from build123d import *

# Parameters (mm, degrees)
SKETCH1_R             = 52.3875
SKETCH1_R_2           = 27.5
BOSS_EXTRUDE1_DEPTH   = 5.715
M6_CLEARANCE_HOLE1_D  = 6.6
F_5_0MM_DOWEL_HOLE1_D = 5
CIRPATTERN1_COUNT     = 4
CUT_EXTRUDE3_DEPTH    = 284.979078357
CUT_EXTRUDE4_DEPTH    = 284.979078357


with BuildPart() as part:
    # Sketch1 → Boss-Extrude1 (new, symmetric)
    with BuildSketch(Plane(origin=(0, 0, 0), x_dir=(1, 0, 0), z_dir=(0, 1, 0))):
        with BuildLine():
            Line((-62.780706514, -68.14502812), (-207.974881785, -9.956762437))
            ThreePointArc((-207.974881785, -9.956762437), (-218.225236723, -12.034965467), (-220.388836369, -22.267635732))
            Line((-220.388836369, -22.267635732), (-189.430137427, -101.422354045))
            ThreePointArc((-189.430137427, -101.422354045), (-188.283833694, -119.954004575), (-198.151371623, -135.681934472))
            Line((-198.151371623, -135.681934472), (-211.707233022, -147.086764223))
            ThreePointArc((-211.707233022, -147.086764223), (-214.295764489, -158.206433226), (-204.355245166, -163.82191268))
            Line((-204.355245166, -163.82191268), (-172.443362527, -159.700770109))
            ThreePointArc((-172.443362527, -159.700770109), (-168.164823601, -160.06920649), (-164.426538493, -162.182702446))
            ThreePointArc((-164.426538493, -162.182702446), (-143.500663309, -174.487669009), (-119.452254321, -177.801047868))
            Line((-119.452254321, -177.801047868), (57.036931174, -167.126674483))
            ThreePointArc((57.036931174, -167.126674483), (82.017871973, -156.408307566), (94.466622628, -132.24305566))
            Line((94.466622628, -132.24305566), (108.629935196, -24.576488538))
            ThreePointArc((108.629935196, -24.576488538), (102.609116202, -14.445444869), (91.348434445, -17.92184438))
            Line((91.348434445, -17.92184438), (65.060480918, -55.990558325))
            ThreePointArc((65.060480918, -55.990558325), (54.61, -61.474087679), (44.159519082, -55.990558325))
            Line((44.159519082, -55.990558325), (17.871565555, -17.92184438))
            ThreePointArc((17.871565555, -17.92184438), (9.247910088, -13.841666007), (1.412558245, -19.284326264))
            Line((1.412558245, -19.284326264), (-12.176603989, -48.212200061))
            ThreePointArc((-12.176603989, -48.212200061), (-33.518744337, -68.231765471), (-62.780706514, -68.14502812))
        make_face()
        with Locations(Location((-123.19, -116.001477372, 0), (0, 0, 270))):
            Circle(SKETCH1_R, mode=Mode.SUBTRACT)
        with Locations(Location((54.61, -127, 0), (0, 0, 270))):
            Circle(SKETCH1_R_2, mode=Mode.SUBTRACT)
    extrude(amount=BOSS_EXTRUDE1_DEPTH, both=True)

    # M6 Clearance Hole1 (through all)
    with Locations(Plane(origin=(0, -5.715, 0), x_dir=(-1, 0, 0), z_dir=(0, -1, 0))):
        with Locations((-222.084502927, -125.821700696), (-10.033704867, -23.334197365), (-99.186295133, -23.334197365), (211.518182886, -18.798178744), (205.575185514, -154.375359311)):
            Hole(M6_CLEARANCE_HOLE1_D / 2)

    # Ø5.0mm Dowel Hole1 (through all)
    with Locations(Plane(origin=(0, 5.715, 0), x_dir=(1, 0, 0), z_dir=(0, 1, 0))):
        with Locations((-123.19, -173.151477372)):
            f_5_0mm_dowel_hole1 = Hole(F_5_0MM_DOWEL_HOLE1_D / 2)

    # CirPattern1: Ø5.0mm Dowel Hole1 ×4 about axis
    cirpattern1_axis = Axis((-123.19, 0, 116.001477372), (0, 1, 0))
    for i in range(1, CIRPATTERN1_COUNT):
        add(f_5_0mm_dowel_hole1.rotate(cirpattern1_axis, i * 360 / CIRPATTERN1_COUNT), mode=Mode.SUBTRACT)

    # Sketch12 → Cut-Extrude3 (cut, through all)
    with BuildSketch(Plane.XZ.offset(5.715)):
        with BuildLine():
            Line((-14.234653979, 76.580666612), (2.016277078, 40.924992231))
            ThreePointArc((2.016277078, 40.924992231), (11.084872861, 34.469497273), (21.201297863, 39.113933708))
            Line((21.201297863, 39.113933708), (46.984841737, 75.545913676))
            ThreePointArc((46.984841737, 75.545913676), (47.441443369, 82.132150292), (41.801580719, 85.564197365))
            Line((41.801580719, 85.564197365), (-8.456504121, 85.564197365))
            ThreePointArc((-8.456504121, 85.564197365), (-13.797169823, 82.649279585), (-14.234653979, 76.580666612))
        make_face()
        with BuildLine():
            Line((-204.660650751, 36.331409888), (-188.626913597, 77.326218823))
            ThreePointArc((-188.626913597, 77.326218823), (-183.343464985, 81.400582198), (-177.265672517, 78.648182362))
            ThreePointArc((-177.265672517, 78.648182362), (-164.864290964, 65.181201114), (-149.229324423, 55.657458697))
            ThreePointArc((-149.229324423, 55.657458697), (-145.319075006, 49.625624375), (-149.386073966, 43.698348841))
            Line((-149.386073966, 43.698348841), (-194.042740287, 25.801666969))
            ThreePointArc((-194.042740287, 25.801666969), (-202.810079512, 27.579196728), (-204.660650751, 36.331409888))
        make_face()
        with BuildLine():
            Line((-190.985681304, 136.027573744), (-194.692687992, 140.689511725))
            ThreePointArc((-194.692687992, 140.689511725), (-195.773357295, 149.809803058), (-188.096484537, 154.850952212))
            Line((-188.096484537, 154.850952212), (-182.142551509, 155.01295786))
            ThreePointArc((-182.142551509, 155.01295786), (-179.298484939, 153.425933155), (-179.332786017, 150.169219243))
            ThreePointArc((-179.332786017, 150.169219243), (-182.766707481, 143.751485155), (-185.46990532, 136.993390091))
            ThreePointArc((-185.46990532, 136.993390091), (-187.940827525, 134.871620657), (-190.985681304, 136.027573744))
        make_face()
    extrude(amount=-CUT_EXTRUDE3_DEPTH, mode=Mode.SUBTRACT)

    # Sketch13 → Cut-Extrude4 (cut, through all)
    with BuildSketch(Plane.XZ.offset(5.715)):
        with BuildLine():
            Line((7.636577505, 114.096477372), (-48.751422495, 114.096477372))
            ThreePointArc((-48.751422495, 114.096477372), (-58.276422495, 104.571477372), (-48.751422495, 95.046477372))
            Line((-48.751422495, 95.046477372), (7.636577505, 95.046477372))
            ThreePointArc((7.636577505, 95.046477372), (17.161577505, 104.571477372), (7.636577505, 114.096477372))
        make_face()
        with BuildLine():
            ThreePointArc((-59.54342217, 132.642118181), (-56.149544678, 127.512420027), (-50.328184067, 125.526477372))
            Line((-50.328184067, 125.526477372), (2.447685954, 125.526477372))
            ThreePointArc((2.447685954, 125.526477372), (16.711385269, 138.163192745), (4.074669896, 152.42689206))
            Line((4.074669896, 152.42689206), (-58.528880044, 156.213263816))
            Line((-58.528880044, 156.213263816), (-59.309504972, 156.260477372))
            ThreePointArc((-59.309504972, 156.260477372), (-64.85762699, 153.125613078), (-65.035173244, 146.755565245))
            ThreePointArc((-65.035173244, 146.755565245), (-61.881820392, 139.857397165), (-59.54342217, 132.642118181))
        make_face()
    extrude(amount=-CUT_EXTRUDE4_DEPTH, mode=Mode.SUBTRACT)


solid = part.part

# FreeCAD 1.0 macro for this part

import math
import FreeCAD as App
import Part
import Sketcher
Q = App.Units.Quantity

doc = App.newDocument("Part")
body = doc.addObject("PartDesign::Body", "Body")

# Sketch on XZ plane
sketch1 = doc.addObject("Sketcher::SketchObject", "Sketch")
body.addObject(sketch1)
sketch1.AttachmentSupport = (doc.XZ_Plane, [""])
sketch1.MapMode = "FlatFace"
sketch1.addGeometry([
    Part.LineSegment(App.Vector(-62.780707, 68.145028, 0), App.Vector(-207.974882, 9.956762, 0)),  # 0
    Part.ArcOfCircle(Part.Circle(App.Vector(-211.518183, 18.798179, 0), App.Vector(0, 0, 1), 9.525), math.radians(158.638723), math.radians(291.839023)),  # 1
    Part.LineSegment(App.Vector(-220.388836, 22.267636, 0), App.Vector(-189.430137, 101.422354, 0)),  # 2
    Part.ArcOfCircle(Part.Circle(App.Vector(-217.679198, 112.471022, 0), App.Vector(0, 0, 1), 30.332861), math.radians(-21.361277), math.radians(49.925396)),  # 3
    Part.LineSegment(App.Vector(-198.151372, 135.681934, 0), App.Vector(-211.707233, 147.086764, 0)),  # 4
    Part.ArcOfCircle(Part.Circle(App.Vector(-205.575186, 154.375359, 0), App.Vector(0, 0, 1), 9.525), math.radians(82.641474), math.radians(229.925396)),  # 5
    Part.LineSegment(App.Vector(-204.355245, 163.821913, 0), App.Vector(-172.443363, 159.70077, 0)),  # 6
    Part.ArcOfCircle(Part.Circle(App.Vector(-171.150394, 169.712817, 0), App.Vector(0, 0, 1), 10.09519), math.radians(-97.358526), math.radians(-48.237421)),  # 7
    Part.ArcOfCircle(Part.Circle(App.Vector(-123.19, 116.001477, 0), App.Vector(0, 0, 1), 61.9125), math.radians(86.538868), math.radians(131.762579)),  # 8
    Part.LineSegment(App.Vector(-119.452254, 177.801048, 0), App.Vector(57.036931, 167.126674, 0)),  # 9
    Part.ArcOfCircle(Part.Circle(App.Vector(54.61, 127, 0), App.Vector(0, 0, 1), 40.2), math.radians(7.49411), math.radians(86.538868)),  # 10
    Part.LineSegment(App.Vector(94.466623, 132.243056, 0), App.Vector(108.629935, 24.576489, 0)),  # 11
    Part.ArcOfCircle(Part.Circle(App.Vector(99.186295, 23.334197, 0), App.Vector(0, 0, 1), 9.525), math.radians(-145.373386), math.radians(7.49411)),  # 12
    Part.LineSegment(App.Vector(91.348434, 17.921844, 0), App.Vector(65.060481, 55.990558, 0)),  # 13
    Part.ArcOfCircle(Part.Circle(App.Vector(54.61, 48.774088, 0), App.Vector(0, 0, 1), 12.7), math.radians(34.626614), math.radians(145.373386)),  # 14
    Part.LineSegment(App.Vector(44.159519, 55.990558, 0), App.Vector(17.871566, 17.921844, 0)),  # 15
    Part.ArcOfCircle(Part.Circle(App.Vector(10.033705, 23.334197, 0), App.Vector(0, 0, 1), 9.525), math.radians(-154.837733), math.radians(-34.626614)),  # 16
    Part.LineSegment(App.Vector(1.412558, 19.284326, 0), App.Vector(-12.176604, 48.2122, 0)),  # 17
    Part.ArcOfCircle(Part.Circle(App.Vector(-48.040574, 31.364736, 0), App.Vector(0, 0, 1), 39.624), math.radians(25.162267), math.radians(111.839023)),  # 18
    Part.Circle(App.Vector(54.61, 127, 0), App.Vector(0, 0, 1), 27.5),  # 19
    Part.Circle(App.Vector(-123.19, 116.001477, 0), App.Vector(0, 0, 1), 52.3875),  # 20
], False)
sketch1.addConstraint([
    Sketcher.Constraint("Coincident", 0, 2, 1, 2),
    Sketcher.Constraint("Coincident", 1, 1, 2, 1),
    Sketcher.Constraint("Coincident", 2, 2, 3, 1),
    Sketcher.Constraint("Coincident", 3, 2, 4, 1),
    Sketcher.Constraint("Coincident", 4, 2, 5, 2),
    Sketcher.Constraint("Coincident", 5, 1, 6, 1),
    Sketcher.Constraint("Coincident", 6, 2, 7, 1),
    Sketcher.Constraint("Coincident", 7, 2, 8, 2),
    Sketcher.Constraint("Coincident", 8, 1, 9, 1),
    Sketcher.Constraint("Coincident", 9, 2, 10, 2),
    Sketcher.Constraint("Coincident", 10, 1, 11, 1),
    Sketcher.Constraint("Coincident", 11, 2, 12, 2),
    Sketcher.Constraint("Coincident", 12, 1, 13, 1),
    Sketcher.Constraint("Coincident", 13, 2, 14, 1),
    Sketcher.Constraint("Coincident", 14, 2, 15, 1),
    Sketcher.Constraint("Coincident", 15, 2, 16, 2),
    Sketcher.Constraint("Coincident", 16, 1, 17, 1),
    Sketcher.Constraint("Coincident", 17, 2, 18, 1),
    Sketcher.Constraint("Coincident", 18, 2, 0, 1),
    Sketcher.Constraint("Coincident", 19, 3, 10, 3),
    Sketcher.Constraint("Coincident", 20, 3, 8, 3),
    Sketcher.Constraint("Radius", 14, Q("0.5 in")),
    Sketcher.Constraint("Radius", 18, Q("1.56 in")),
    Sketcher.Constraint("Diameter", 20, Q("4.125 in")),
    Sketcher.Constraint("DistanceY", -1, 1, 10, 3, Q("5 in")),
    Sketcher.Constraint("Radius", 1, Q("0.375 in")),
    Sketcher.Constraint("Radius", 5, Q("0.375 in")),
    Sketcher.Constraint("Radius", 8, Q("2.4375 in")),
    Sketcher.Constraint("Radius", 12, Q("0.375 in")),
    Sketcher.Constraint("Radius", 16, Q("0.375 in")),
    Sketcher.Constraint("DistanceX", 8, 3, 10, 3, Q("7 in")),
    Sketcher.Constraint("DistanceX", 8, 3, 14, 3, Q("7 in")),
    Sketcher.Constraint("Diameter", 19, 55.0),
    Sketcher.Constraint("DistanceX", 8, 3, -1, 1, Q("4.85 in")),
    Sketcher.Constraint("Radius", 10, 40.2),
    Sketcher.Constraint("Radius", 3, 30.332861),
    Sketcher.Constraint("Radius", 7, 10.09519),
    Sketcher.Constraint("DistanceX", 1, 3, 0, 2, Q("0.1395 in")),
    Sketcher.Constraint("DistanceX", 3, 3, -1, 1, 217.679198),
    Sketcher.Constraint("DistanceY", -1, 1, 17, 2, 48.2122),
    Sketcher.Constraint("DistanceY", 1, 3, 8, 3, 97.203299),
    Sketcher.Constraint("DistanceY", 11, 2, 14, 3, 24.197599),
    Sketcher.Constraint("DistanceX", 12, 1, 11, 2, 17.281501),
    Sketcher.Constraint("DistanceY", 16, 1, 18, 2, 48.860702),
    Sketcher.Constraint("Distance", 0, 156.42002),
    Sketcher.Constraint("Distance", 2, 84.993591),
    Sketcher.Constraint("Distance", 4, 17.715291),
    Sketcher.Constraint("Distance", 11, 108.594149),
    Sketcher.Constraint("DistanceY", -1, 1, 1, 3, 18.798179),
    Sketcher.Constraint("DistanceY", -1, 1, 3, 3, 112.471022),
    Sketcher.Constraint("DistanceY", -1, 1, 5, 3, 154.375359),
    Sketcher.Constraint("DistanceX", 0, 2, -1, 1, 207.974882),
    Sketcher.Constraint("DistanceX", 3, 2, -1, 1, 198.151372),
    Sketcher.Constraint("DistanceY", -1, 1, 6, 2, 159.70077),
    Sketcher.Constraint("DistanceX", 7, 2, -1, 1, 164.426538),
    Sketcher.Constraint("DistanceX", -1, 1, 9, 2, 57.036931),
    Sketcher.Constraint("DistanceY", -1, 1, 11, 2, 24.576489),
    Sketcher.Constraint("DistanceX", -1, 1, 13, 2, 65.060481),
    Sketcher.Constraint("DistanceX", -1, 1, 14, 2, 44.159519),
    Sketcher.Constraint("DistanceX", -1, 1, 16, 1, 1.412558),
    Sketcher.Constraint("DistanceY", -1, 1, 18, 2, 68.145028),
    Sketcher.Constraint("DistanceX", 5, 3, 7, 3, 34.424792),
    Sketcher.Constraint("DistanceX", 1, 3, 7, 3, 40.367789),
    Sketcher.Constraint("DistanceY", 12, 3, 8, 3, 92.66728),
    Sketcher.Constraint("DistanceX", 7, 3, 12, 3, 270.336689),
    Sketcher.Constraint("DistanceY", 16, 3, 14, 3, 25.43989),
    Sketcher.Constraint("DistanceX", 18, 3, 16, 3, 58.074279),
    Sketcher.Constraint("DistanceX", 1, 1, 3, 3, 2.709638),
    Sketcher.Constraint("DistanceX", 5, 3, 5, 1, 1.21994),
    Sketcher.Constraint("DistanceX", 7, 3, 8, 1, 51.698139),
    Sketcher.Constraint("DistanceX", 16, 3, 15, 2, 7.837861),
])
pad1 = doc.addObject("PartDesign::Pad", "Pad")
body.addObject(pad1)
pad1.Profile = sketch1
pad1.Length = Q("0.45 in")
pad1.Midplane = True

# Sketch on XZ plane
sketch2 = doc.addObject("Sketcher::SketchObject", "Sketch001")
body.addObject(sketch2)
sketch2.AttachmentSupport = (doc.XZ_Plane, [""])
sketch2.MapMode = "FlatFace"
sketch2.AttachmentOffset = App.Placement(App.Vector(0, 0, 0.225 * 25.4), App.Rotation())
sketch2.addGeometry([
    Part.Circle(App.Vector(222.1, 125.8, 0), App.Vector(0, 0, 1), 3.3),  # 0
    Part.Circle(App.Vector(10, 23.3, 0), App.Vector(0, 0, 1), 3.3),  # 1
    Part.Circle(App.Vector(99.2, 23.3, 0), App.Vector(0, 0, 1), 3.3),  # 2
    Part.Circle(App.Vector(-211.5, 18.8, 0), App.Vector(0, 0, 1), 3.3),  # 3
    Part.Circle(App.Vector(-205.6, 154.4, 0), App.Vector(0, 0, 1), 3.3),  # 4
], False)
sketch2.addConstraint([
    Sketcher.Constraint("Equal", 0, 1),
    Sketcher.Constraint("Equal", 1, 2),
    Sketcher.Constraint("Equal", 2, 3),
    Sketcher.Constraint("Equal", 3, 4),
    Sketcher.Constraint("Horizontal", 1, 3, 2, 3),
    Sketcher.Constraint("Diameter", 0, 6.6),
    Sketcher.Constraint("DistanceY", -1, 1, 0, 3, 125.821701),
    Sketcher.Constraint("DistanceX", 1, 3, 0, 3, 212.050798),
    Sketcher.Constraint("DistanceY", -1, 1, 3, 3, 18.798179),
    Sketcher.Constraint("DistanceY", -1, 1, 4, 3, 154.375359),
    Sketcher.Constraint("DistanceX", 1, 3, 2, 3, 89.15259),
    Sketcher.Constraint("DistanceY", 3, 3, 1, 3, 4.536019),
    Sketcher.Constraint("DistanceX", 3, 3, 2, 3, 310.704478),
    Sketcher.Constraint("DistanceX", 4, 3, 1, 3, 215.60889),
    Sketcher.Constraint("DistanceX", -1, 1, 0, 3, 222.084503),
])
doc.recompute()
hole = doc.addObject("PartDesign::Hole", "Hole")
body.addObject(hole)
hole.Profile = sketch2
hole.ThreadType = "None"
hole.Diameter = 6.6
hole.DepthType = "ThroughAll"

# Sketch on XZ plane
sketch3 = doc.addObject("Sketcher::SketchObject", "Sketch002")
body.addObject(sketch3)
sketch3.AttachmentSupport = (doc.XZ_Plane, [""])
sketch3.MapMode = "FlatFace"
sketch3.AttachmentOffset = App.Placement(App.Vector(0, 0, -0.225 * 25.4), App.Rotation())
sketch3.addGeometry(Part.Circle(App.Vector(-123.2, 173.2, 0), App.Vector(0, 0, 1), 2.5), False)
sketch3.addConstraint([
    Sketcher.Constraint("Diameter", 0, 5.0),
    Sketcher.Constraint("DistanceX", 0, 3, -1, 1, Q("4.85 in")),
    Sketcher.Constraint("DistanceY", -1, 1, 0, 3, 173.151477),
])
doc.recompute()
hole2 = doc.addObject("PartDesign::Hole", "Hole001")
body.addObject(hole2)
hole2.Profile = sketch3
hole2.ThreadType = "None"
hole2.Diameter = 5
hole2.DepthType = "ThroughAll"
hole2.Reversed = True
doc.recompute()

datumline = doc.addObject("PartDesign::Line", "DatumLine")
body.addObject(datumline)
datumline.Placement = App.Placement(App.Vector(-123.19, 0, 116.001477), App.Rotation(App.Vector(0, 0, 1), App.Vector(0, 1, 0)))
polarpattern = doc.addObject("PartDesign::PolarPattern", "PolarPattern")
body.addObject(polarpattern)
polarpattern.Originals = [hole2]
polarpattern.Axis = (datumline, [""])
polarpattern.Angle = 360
polarpattern.Occurrences = 4
body.Tip = polarpattern

# Sketch on XZ plane
sketch4 = doc.addObject("Sketcher::SketchObject", "Sketch003")
body.addObject(sketch4)
sketch4.AttachmentSupport = (doc.XZ_Plane, [""])
sketch4.MapMode = "FlatFace"
sketch4.AttachmentOffset = App.Placement(App.Vector(0, 0, 0.225 * 25.4), App.Rotation())
sketch4.addGeometry([
    Part.LineSegment(App.Vector(-14.234654, 76.580667, 0), App.Vector(2.016277, 40.924992, 0)),  # 0
    Part.ArcOfCircle(Part.Circle(App.Vector(12.129384, 45.534284, 0), App.Vector(0, 0, 1), 11.113978), math.radians(-155.497733), math.radians(-35.287705)),  # 1
    Part.LineSegment(App.Vector(21.201298, 39.113934, 0), App.Vector(46.984842, 75.545914, 0)),  # 2
    Part.ArcOfCircle(Part.Circle(App.Vector(41.801581, 79.214197, 0), App.Vector(0, 0, 1), 6.35), math.radians(-35.287705), math.radians(90)),  # 3
    Part.LineSegment(App.Vector(41.801581, 85.564197, 0), App.Vector(-8.456504, 85.564197, 0)),  # 4
    Part.ArcOfCircle(Part.Circle(App.Vector(-8.456504, 79.214197, 0), App.Vector(0, 0, 1), 6.35), math.radians(90), math.radians(204.502267)),  # 5
    Part.LineSegment(App.Vector(-188.626914, 77.326219, 0), App.Vector(-204.660651, 36.33141, 0)),  # 6
    Part.ArcOfCircle(Part.Circle(App.Vector(-197.073399, 33.363912, 0), App.Vector(0, 0, 1), 8.146928), math.radians(158.638723), math.radians(291.839023)),  # 7
    Part.LineSegment(App.Vector(-194.04274, 25.801667, 0), App.Vector(-149.386074, 43.698349, 0)),  # 8
    Part.ArcOfCircle(Part.Circle(App.Vector(-151.795519, 49.710512, 0), App.Vector(0, 0, 1), 6.477), math.radians(-68.160977), math.radians(66.659098)),  # 9
    Part.ArcOfCircle(Part.Circle(App.Vector(-123.19, 116.001477, 0), App.Vector(0, 0, 1), 65.7225), math.radians(-145.364847), math.radians(-113.340902)),  # 10
    Part.ArcOfCircle(Part.Circle(App.Vector(-182.594869, 74.966988, 0), App.Vector(0, 0, 1), 6.477), math.radians(34.635153), math.radians(158.638723)),  # 11
    Part.LineSegment(App.Vector(-194.692688, 140.689512, 0), App.Vector(-190.985681, 136.027574, 0)),  # 12
    Part.ArcOfCircle(Part.Circle(App.Vector(-188.490631, 138.011549, 0), App.Vector(0, 0, 1), 3.1877), math.radians(-141.509533), math.radians(-18.626778)),  # 13
    Part.ArcOfCircle(Part.Circle(App.Vector(-123.19, 116.001477, 0), App.Vector(0, 0, 1), 65.7225), math.radians(148.67587), math.radians(161.373222)),  # 14
    Part.ArcOfCircle(Part.Circle(App.Vector(-182.055847, 151.826437, 0), App.Vector(0, 0, 1), 3.1877), math.radians(-31.32413), math.radians(91.558625)),  # 15
    Part.LineSegment(App.Vector(-182.142552, 155.012958, 0), App.Vector(-188.096485, 154.850952, 0)),  # 16
    Part.ArcOfCircle(Part.Circle(App.Vector(-187.859009, 146.123409, 0), App.Vector(0, 0, 1), 8.730773), math.radians(91.558625), math.radians(218.490467)),  # 17
], False)
sketch4.addConstraint([
    Sketcher.Constraint("Coincident", 0, 2, 1, 1),
    Sketcher.Constraint("Coincident", 1, 2, 2, 1),
    Sketcher.Constraint("Coincident", 2, 2, 3, 1),
    Sketcher.Constraint("Coincident", 3, 2, 4, 1),
    Sketcher.Constraint("Coincident", 4, 2, 5, 1),
    Sketcher.Constraint("Coincident", 5, 2, 0, 1),
    Sketcher.Constraint("Coincident", 6, 2, 7, 1),
    Sketcher.Constraint("Coincident", 7, 2, 8, 1),
    Sketcher.Constraint("Coincident", 8, 2, 9, 1),
    Sketcher.Constraint("Coincident", 9, 2, 10, 2),
    Sketcher.Constraint("Coincident", 10, 1, 11, 1),
    Sketcher.Constraint("Coincident", 11, 2, 6, 1),
    Sketcher.Constraint("Coincident", 12, 2, 13, 1),
    Sketcher.Constraint("Coincident", 13, 2, 14, 2),
    Sketcher.Constraint("Coincident", 14, 1, 15, 1),
    Sketcher.Constraint("Coincident", 15, 2, 16, 1),
    Sketcher.Constraint("Coincident", 16, 2, 17, 1),
    Sketcher.Constraint("Coincident", 17, 2, 12, 1),
    Sketcher.Constraint("Horizontal", 4),
    Sketcher.Constraint("Coincident", 14, 3, 10, 3),
    Sketcher.Constraint("Radius", 3, Q("0.25 in")),
    Sketcher.Constraint("Radius", 5, Q("0.25 in")),
    Sketcher.Constraint("Radius", 9, Q("0.255 in")),
    Sketcher.Constraint("Radius", 11, Q("0.255 in")),
    Sketcher.Constraint("Radius", 10, Q("2.5875 in")),
    Sketcher.Constraint("Radius", 13, Q("0.1255 in")),
    Sketcher.Constraint("Radius", 14, Q("2.5875 in")),
    Sketcher.Constraint("Radius", 15, Q("0.1255 in")),
    Sketcher.Constraint("DistanceX", 10, 3, -1, 1, Q("4.85 in")),
    Sketcher.Constraint("Radius", 1, 11.113978),
    Sketcher.Constraint("Radius", 7, 8.146928),
    Sketcher.Constraint("Radius", 17, 8.730773),
    Sketcher.Constraint("DistanceX", 1, 2, 2, 2, Q("1.0151002 in")),
    Sketcher.Constraint("DistanceX", 7, 3, -1, 1, 197.073399),
    Sketcher.Constraint("DistanceY", 7, 3, 9, 3, 16.3466),
    Sketcher.Constraint("DistanceX", 9, 3, 3, 3, 193.597099),
    Sketcher.Constraint("DistanceX", 5, 3, 1, 2, 29.657802),
    Sketcher.Constraint("DistanceY", 6, 2, 17, 3, 109.791999),
    Sketcher.Constraint("DistanceX", 10, 1, 8, 2, 27.879599),
    Sketcher.Constraint("DistanceX", 16, 2, 14, 1, 8.763699),
    Sketcher.Constraint("DistanceX", 4, 2, 4, 1, 50.258085),
    Sketcher.Constraint("DistanceX", -1, 1, 3, 3, 41.801581),
    Sketcher.Constraint("DistanceY", -1, 1, 9, 3, 49.710512),
    Sketcher.Constraint("DistanceX", 11, 3, -1, 1, 182.594869),
    Sketcher.Constraint("DistanceX", 13, 3, -1, 1, 188.490631),
    Sketcher.Constraint("DistanceX", 17, 3, -1, 1, 187.859009),
    Sketcher.Constraint("DistanceY", -1, 1, 17, 3, 146.123409),
    Sketcher.Constraint("DistanceX", -1, 1, 2, 2, 46.984842),
    Sketcher.Constraint("DistanceX", -1, 1, 3, 2, 41.801581),
    Sketcher.Constraint("DistanceX", 7, 2, -1, 1, 194.04274),
    Sketcher.Constraint("DistanceY", -1, 1, 8, 2, 43.698349),
    Sketcher.Constraint("DistanceY", -1, 1, 9, 2, 55.657459),
    Sketcher.Constraint("DistanceY", -1, 1, 11, 2, 77.326219),
    Sketcher.Constraint("DistanceX", 12, 2, -1, 1, 190.985681),
    Sketcher.Constraint("DistanceY", -1, 1, 13, 2, 136.99339),
    Sketcher.Constraint("DistanceY", -1, 1, 14, 1, 150.169219),
    Sketcher.Constraint("DistanceX", 15, 2, -1, 1, 182.142552),
    Sketcher.Constraint("DistanceY", -1, 1, 17, 2, 140.689512),
    Sketcher.Constraint("DistanceX", 5, 3, 1, 3, 20.585889),
    Sketcher.Constraint("DistanceY", 5, 3, 10, 3, 36.78728),
    Sketcher.Constraint("DistanceY", 13, 3, 15, 3, 13.814889),
    Sketcher.Constraint("DistanceY", 0, 2, 1, 3, 4.609292),
    Sketcher.Constraint("DistanceY", 1, 2, 2, 2, 36.43198),
    Sketcher.Constraint("DistanceX", 5, 2, 5, 3, 5.77815),
])
pocket1 = doc.addObject("PartDesign::Pocket", "Pocket")
body.addObject(pocket1)
pocket1.Profile = sketch4
pocket1.Type = "ThroughAll"

# Sketch on XZ plane
sketch5 = doc.addObject("Sketcher::SketchObject", "Sketch004")
body.addObject(sketch5)
sketch5.AttachmentSupport = (doc.XZ_Plane, [""])
sketch5.MapMode = "FlatFace"
sketch5.AttachmentOffset = App.Placement(App.Vector(0, 0, 0.225 * 25.4), App.Rotation())
sketch5.addGeometry([
    Part.LineSegment(App.Vector(7.6, 114.1, 0), App.Vector(-48.8, 114.1, 0)),  # 0
    Part.ArcOfCircle(Part.Circle(App.Vector(-48.8, 104.6, 0), App.Vector(0, 0, 1), 9.5), math.radians(90), math.radians(270)),  # 1
    Part.LineSegment(App.Vector(-48.8, 95, 0), App.Vector(7.6, 95, 0)),  # 2
    Part.ArcOfCircle(Part.Circle(App.Vector(7.6, 104.6, 0), App.Vector(0, 0, 1), 9.5), math.radians(-90), math.radians(90)),  # 3
    Part.ArcOfCircle(Part.Circle(App.Vector(-50.3, 135.1, 0), App.Vector(0, 0, 1), 9.5), math.radians(-165), math.radians(-90)),  # 4
    Part.LineSegment(App.Vector(-50.3, 125.5, 0), App.Vector(2.4, 125.5, 0)),  # 5
    Part.ArcOfCircle(Part.Circle(App.Vector(3.3, 139, 0), App.Vector(0, 0, 1), 13.5), math.radians(-93), math.radians(87)),  # 6
    Part.LineSegment(App.Vector(4.1, 152.4, 0), App.Vector(-58.5, 156.2, 0)),  # 7
    Part.LineSegment(App.Vector(-58.5, 156.2, 0), App.Vector(-59.3, 156.3, 0)),  # 8
    Part.ArcOfCircle(Part.Circle(App.Vector(-59.3, 149.8, 0), App.Vector(0, 0, 1), 6.5), math.radians(90), math.radians(208)),  # 9
    Part.ArcOfCircle(Part.Circle(App.Vector(-123.2, 116, 0), App.Vector(0, 0, 1), 65.8), math.radians(14.65), math.radians(27.87)),  # 10
], False)
sketch5.addConstraint([
    Sketcher.Constraint("Tangent", 0, 2, 1, 1),
    Sketcher.Constraint("Tangent", 1, 2, 2, 1),
    Sketcher.Constraint("Tangent", 2, 2, 3, 1),
    Sketcher.Constraint("Tangent", 3, 2, 0, 1),
    Sketcher.Constraint("Tangent", 4, 2, 5, 1),
    Sketcher.Constraint("Coincident", 5, 2, 6, 1),
    Sketcher.Constraint("Tangent", 6, 2, 7, 1),
    Sketcher.Constraint("Coincident", 7, 2, 8, 1),
    Sketcher.Constraint("Coincident", 8, 2, 9, 1),
    Sketcher.Constraint("Tangent", 9, 2, 10, 2),
    Sketcher.Constraint("Tangent", 10, 1, 4, 1),
    Sketcher.Constraint("Horizontal", 0),
    Sketcher.Constraint("Horizontal", 2),
    Sketcher.Constraint("Horizontal", 5),
    Sketcher.Constraint("Equal", 3, 4),
    Sketcher.Constraint("Parallel", 7, 8),
    Sketcher.Constraint("Vertical", 9, 3, 8, 2),
    Sketcher.Constraint("Radius", 10, Q("2.59 in")),
    Sketcher.Constraint("Radius", 1, Q("0.375 in")),
    Sketcher.Constraint("Radius", 9, Q("0.255 in")),
    Sketcher.Constraint("DistanceX", 0, 2, 0, 1, Q("2.22 in")),
    Sketcher.Constraint("DistanceY", 1, 3, 4, 3, Q("1.2 in")),
    Sketcher.Constraint("DistanceX", 10, 3, -1, 1, Q("4.85 in")),
    Sketcher.Constraint("DistanceY", 4, 3, 9, 3, Q("0.58 in")),
    Sketcher.Constraint("DistanceY", 10, 3, 9, 3, Q("1.33 in")),
    Sketcher.Constraint("Radius", 6, 13.474786),
    Sketcher.Constraint("DistanceX", 5, 1, 5, 2, 52.77587),
    Sketcher.Constraint("DistanceX", 6, 3, 3, 3, 4.3754),
    Sketcher.Constraint("DistanceY", 9, 2, 7, 2, 9.457699),
    Sketcher.Constraint("DistanceX", 10, 1, 0, 2, 10.792),
    Sketcher.Constraint("DistanceY", -1, 1, 10, 1, 132.642118),
])
pocket2 = doc.addObject("PartDesign::Pocket", "Pocket001")
body.addObject(pocket2)
pocket2.Profile = sketch5
pocket2.Type = "ThroughAll"

doc.recompute()
